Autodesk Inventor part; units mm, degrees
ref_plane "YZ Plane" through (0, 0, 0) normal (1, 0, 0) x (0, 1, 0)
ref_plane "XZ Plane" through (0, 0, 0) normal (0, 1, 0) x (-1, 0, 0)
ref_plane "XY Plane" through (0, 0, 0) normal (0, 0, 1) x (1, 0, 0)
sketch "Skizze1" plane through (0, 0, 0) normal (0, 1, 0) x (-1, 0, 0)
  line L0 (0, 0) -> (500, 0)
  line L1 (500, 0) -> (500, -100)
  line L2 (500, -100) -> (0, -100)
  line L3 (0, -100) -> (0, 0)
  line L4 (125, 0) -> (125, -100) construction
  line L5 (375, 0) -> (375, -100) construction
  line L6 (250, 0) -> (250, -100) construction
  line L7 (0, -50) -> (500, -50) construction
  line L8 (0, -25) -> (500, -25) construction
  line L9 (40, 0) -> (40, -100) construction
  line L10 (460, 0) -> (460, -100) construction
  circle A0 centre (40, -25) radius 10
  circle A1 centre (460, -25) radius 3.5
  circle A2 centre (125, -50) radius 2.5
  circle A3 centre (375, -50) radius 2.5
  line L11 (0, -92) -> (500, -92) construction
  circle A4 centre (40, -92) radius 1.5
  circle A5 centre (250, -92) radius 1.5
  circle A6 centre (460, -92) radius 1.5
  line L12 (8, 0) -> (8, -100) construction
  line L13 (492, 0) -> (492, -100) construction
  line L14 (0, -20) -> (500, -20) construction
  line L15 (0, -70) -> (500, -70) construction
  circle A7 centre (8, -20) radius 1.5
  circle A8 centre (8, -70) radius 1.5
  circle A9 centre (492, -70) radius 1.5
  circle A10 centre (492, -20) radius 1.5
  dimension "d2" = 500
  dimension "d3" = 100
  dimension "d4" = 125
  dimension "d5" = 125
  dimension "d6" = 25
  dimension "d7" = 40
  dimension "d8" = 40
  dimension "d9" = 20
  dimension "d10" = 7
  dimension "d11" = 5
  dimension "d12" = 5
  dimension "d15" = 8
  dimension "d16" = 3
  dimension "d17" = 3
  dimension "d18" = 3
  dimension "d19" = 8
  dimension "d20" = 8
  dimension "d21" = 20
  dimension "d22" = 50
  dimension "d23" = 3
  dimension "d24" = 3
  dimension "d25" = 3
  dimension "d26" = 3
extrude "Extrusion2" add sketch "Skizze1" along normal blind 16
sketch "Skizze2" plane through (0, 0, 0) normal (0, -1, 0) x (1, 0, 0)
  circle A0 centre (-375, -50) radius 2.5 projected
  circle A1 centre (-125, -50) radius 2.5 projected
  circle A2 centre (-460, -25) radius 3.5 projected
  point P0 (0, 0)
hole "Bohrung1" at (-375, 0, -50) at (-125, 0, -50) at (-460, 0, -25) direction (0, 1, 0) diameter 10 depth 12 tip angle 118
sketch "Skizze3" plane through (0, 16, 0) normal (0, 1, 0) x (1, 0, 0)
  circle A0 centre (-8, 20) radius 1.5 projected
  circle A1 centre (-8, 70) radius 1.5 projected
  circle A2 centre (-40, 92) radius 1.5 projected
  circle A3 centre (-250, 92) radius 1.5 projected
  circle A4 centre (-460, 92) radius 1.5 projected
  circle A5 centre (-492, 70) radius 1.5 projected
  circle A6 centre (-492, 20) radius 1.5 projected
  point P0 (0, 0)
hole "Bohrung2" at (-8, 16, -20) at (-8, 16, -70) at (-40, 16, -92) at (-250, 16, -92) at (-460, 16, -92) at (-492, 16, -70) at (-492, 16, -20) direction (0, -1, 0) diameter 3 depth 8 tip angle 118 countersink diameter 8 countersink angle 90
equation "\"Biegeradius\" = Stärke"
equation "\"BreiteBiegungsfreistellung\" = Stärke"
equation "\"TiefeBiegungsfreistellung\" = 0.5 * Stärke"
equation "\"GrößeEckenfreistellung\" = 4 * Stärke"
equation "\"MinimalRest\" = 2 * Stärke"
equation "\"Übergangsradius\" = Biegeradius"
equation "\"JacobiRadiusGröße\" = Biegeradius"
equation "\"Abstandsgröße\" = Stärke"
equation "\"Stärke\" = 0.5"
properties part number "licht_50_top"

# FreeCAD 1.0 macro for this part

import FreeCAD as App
import Part
import Sketcher

V = App.Vector


def add_polygon(sketch, points):
    """Adds a closed chain of lines whose ends are joined by coincident constraints."""
    first, n = sketch.GeometryCount, len(points)
    for a, b in zip(points, points[1:] + points[:1]):
        sketch.addGeometry(Part.LineSegment(App.Vector(*a, 0), App.Vector(*b, 0)), False)
    for i in range(n):
        sketch.addConstraint(Sketcher.Constraint("Coincident", first + i, 2, first + (i + 1) % n, 1))

doc = App.newDocument("Part")
body = doc.addObject("PartDesign::Body", "Body")

sketch1 = doc.addObject("Sketcher::SketchObject", "Sketch")
body.addObject(sketch1)
sketch1.AttachmentSupport = (doc.XZ_Plane, [""])
sketch1.MapMode = "FlatFace"
add_polygon(sketch1, [(-500, 0), (0, 0), (0, -100), (-500, -100)])
sketch1.addGeometry(Part.Circle(V(-40, -92, 0), V(0, 0, 1), 1.5), False)
sketch1.addGeometry(Part.Circle(V(-8, -70, 0), V(0, 0, 1), 1.5), False)
sketch1.addGeometry(Part.Circle(V(-250, -92, 0), V(0, 0, 1), 1.5), False)
sketch1.addGeometry(Part.Circle(V(-460, -92, 0), V(0, 0, 1), 1.5), False)
sketch1.addGeometry(Part.Circle(V(-492, -70, 0), V(0, 0, 1), 1.5), False)
sketch1.addGeometry(Part.Circle(V(-125, -50, 0), V(0, 0, 1), 2.5), False)
sketch1.addGeometry(Part.Circle(V(-8, -20, 0), V(0, 0, 1), 1.5), False)
sketch1.addGeometry(Part.Circle(V(-40, -25, 0), V(0, 0, 1), 10), False)
sketch1.addGeometry(Part.Circle(V(-375, -50, 0), V(0, 0, 1), 2.5), False)
sketch1.addGeometry(Part.Circle(V(-460, -25, 0), V(0, 0, 1), 3.5), False)
sketch1.addGeometry(Part.Circle(V(-492, -20, 0), V(0, 0, 1), 1.5), False)
sketch1.addConstraint(Sketcher.Constraint("Horizontal", 0))
sketch1.addConstraint(Sketcher.Constraint("Vertical", 1))
sketch1.addConstraint(Sketcher.Constraint("Horizontal", 2))
sketch1.addConstraint(Sketcher.Constraint("Vertical", 3))
sketch1.addConstraint(Sketcher.Constraint("Coincident", 0, 2, -1, 1))
sketch1.addConstraint(Sketcher.Constraint("Equal", 4, 5))
sketch1.addConstraint(Sketcher.Constraint("Equal", 5, 6))
sketch1.addConstraint(Sketcher.Constraint("Equal", 6, 7))
sketch1.addConstraint(Sketcher.Constraint("Equal", 7, 8))
sketch1.addConstraint(Sketcher.Constraint("Equal", 8, 10))
sketch1.addConstraint(Sketcher.Constraint("Equal", 9, 12))
sketch1.addConstraint(Sketcher.Constraint("Equal", 10, 14))
sketch1.addConstraint(Sketcher.Constraint("Horizontal", 4, 3, 6, 3))
sketch1.addConstraint(Sketcher.Constraint("Horizontal", 6, 3, 7, 3))
sketch1.addConstraint(Sketcher.Constraint("Horizontal", 5, 3, 8, 3))
sketch1.addConstraint(Sketcher.Constraint("Horizontal", 9, 3, 12, 3))
sketch1.addConstraint(Sketcher.Constraint("Horizontal", 11, 3, 13, 3))
sketch1.addConstraint(Sketcher.Constraint("Horizontal", 10, 3, 14, 3))
sketch1.addConstraint(Sketcher.Constraint("Vertical", 5, 3, 10, 3))
sketch1.addConstraint(Sketcher.Constraint("Vertical", 4, 3, 11, 3))
sketch1.addConstraint(Sketcher.Constraint("Vertical", 7, 3, 13, 3))
sketch1.addConstraint(Sketcher.Constraint("Vertical", 8, 3, 14, 3))
sketch1.addConstraint(Sketcher.Constraint("Diameter", 4, 3.0))
sketch1.addConstraint(Sketcher.Constraint("Diameter", 9, 5.0))
sketch1.addConstraint(Sketcher.Constraint("Diameter", 11, 20.0))
sketch1.addConstraint(Sketcher.Constraint("Diameter", 13, 7.0))
sketch1.addConstraint(Sketcher.Constraint("DistanceX", 0, 1, 0, 2, 500.0))
sketch1.addConstraint(Sketcher.Constraint("DistanceY", 1, 2, 1, 1, 100.0))
sketch1.addConstraint(Sketcher.Constraint("DistanceX", 4, 3, -1, 1, 40.0))
sketch1.addConstraint(Sketcher.Constraint("DistanceX", 5, 3, -1, 1, 8.0))
sketch1.addConstraint(Sketcher.Constraint("DistanceX", 9, 3, -1, 1, 125.0))
sketch1.addConstraint(Sketcher.Constraint("DistanceY", 9, 3, -1, 1, 50.0))
sketch1.addConstraint(Sketcher.Constraint("DistanceY", 10, 3, -1, 1, 20.0))
sketch1.addConstraint(Sketcher.Constraint("DistanceY", 11, 3, -1, 1, 25.0))
sketch1.addConstraint(Sketcher.Constraint("DistanceY", 5, 3, 9, 3, 20.0))
sketch1.addConstraint(Sketcher.Constraint("DistanceX", 6, 3, 9, 3, 125.0))
sketch1.addConstraint(Sketcher.Constraint("DistanceX", 12, 3, 6, 3, 125.0))
sketch1.addConstraint(Sketcher.Constraint("DistanceY", 1, 2, 4, 3, 8.0))
sketch1.addConstraint(Sketcher.Constraint("DistanceX", 2, 2, 8, 3, 8.0))
sketch1.addConstraint(Sketcher.Constraint("DistanceX", 2, 2, 7, 3, 40.0))
pad1 = doc.addObject("PartDesign::Pad", "Pad")
body.addObject(pad1)
pad1.Profile = sketch1
pad1.Length = 16
pad1.Reversed = True

sketch2 = doc.addObject("Sketcher::SketchObject", "Sketch001")
body.addObject(sketch2)
sketch2.AttachmentSupport = (doc.XZ_Plane, [""])
sketch2.MapMode = "FlatFace"
sketch2.addGeometry(Part.Circle(V(-375, -50, 0), V(0, 0, 1), 5), False)
sketch2.addGeometry(Part.Circle(V(-125, -50, 0), V(0, 0, 1), 5), False)
sketch2.addGeometry(Part.Circle(V(-460, -25, 0), V(0, 0, 1), 5), False)
sketch2.addConstraint(Sketcher.Constraint("Equal", 0, 1))
sketch2.addConstraint(Sketcher.Constraint("Equal", 1, 2))
sketch2.addConstraint(Sketcher.Constraint("Horizontal", 0, 3, 1, 3))
sketch2.addConstraint(Sketcher.Constraint("Diameter", 0, 10.0))
sketch2.addConstraint(Sketcher.Constraint("DistanceX", 0, 3, -1, 1, 375.0))
sketch2.addConstraint(Sketcher.Constraint("DistanceY", 0, 3, -1, 1, 50.0))
sketch2.addConstraint(Sketcher.Constraint("DistanceX", 1, 3, -1, 1, 125.0))
sketch2.addConstraint(Sketcher.Constraint("DistanceX", 2, 3, -1, 1, 460.0))
sketch2.addConstraint(Sketcher.Constraint("DistanceY", 2, 3, -1, 1, 25.0))
doc.recompute()
hole = doc.addObject("PartDesign::Hole", "Hole")
body.addObject(hole)
hole.Profile = sketch2
hole.ThreadType = "None"
hole.Diameter = 10
hole.DepthType = "Dimension"
hole.Depth = 12
hole.DrillPoint = "Angled"
hole.DrillPointAngle = 118

sketch3 = doc.addObject("Sketcher::SketchObject", "Sketch002")
body.addObject(sketch3)
sketch3.AttachmentSupport = (doc.XZ_Plane, [""])
sketch3.MapMode = "FlatFace"
sketch3.AttachmentOffset = App.Placement(V(0, 0, -16), App.Rotation())
sketch3.addGeometry(Part.Circle(V(-8, -20, 0), V(0, 0, 1), 1.5), False)
sketch3.addGeometry(Part.Circle(V(-8, -70, 0), V(0, 0, 1), 1.5), False)
sketch3.addGeometry(Part.Circle(V(-40, -92, 0), V(0, 0, 1), 1.5), False)
sketch3.addGeometry(Part.Circle(V(-250, -92, 0), V(0, 0, 1), 1.5), False)
sketch3.addGeometry(Part.Circle(V(-460, -92, 0), V(0, 0, 1), 1.5), False)
sketch3.addGeometry(Part.Circle(V(-492, -70, 0), V(0, 0, 1), 1.5), False)
sketch3.addGeometry(Part.Circle(V(-492, -20, 0), V(0, 0, 1), 1.5), False)
sketch3.addConstraint(Sketcher.Constraint("Equal", 0, 1))
sketch3.addConstraint(Sketcher.Constraint("Equal", 1, 2))
sketch3.addConstraint(Sketcher.Constraint("Equal", 2, 3))
sketch3.addConstraint(Sketcher.Constraint("Equal", 3, 4))
sketch3.addConstraint(Sketcher.Constraint("Equal", 4, 5))
sketch3.addConstraint(Sketcher.Constraint("Equal", 5, 6))
sketch3.addConstraint(Sketcher.Constraint("Horizontal", 2, 3, 3, 3))
sketch3.addConstraint(Sketcher.Constraint("Horizontal", 3, 3, 4, 3))
sketch3.addConstraint(Sketcher.Constraint("Horizontal", 1, 3, 5, 3))
sketch3.addConstraint(Sketcher.Constraint("Horizontal", 0, 3, 6, 3))
sketch3.addConstraint(Sketcher.Constraint("Vertical", 0, 3, 1, 3))
sketch3.addConstraint(Sketcher.Constraint("Vertical", 5, 3, 6, 3))
sketch3.addConstraint(Sketcher.Constraint("Diameter", 0, 3.0))
sketch3.addConstraint(Sketcher.Constraint("DistanceX", 0, 3, -1, 1, 8.0))
sketch3.addConstraint(Sketcher.Constraint("DistanceY", 0, 3, -1, 1, 20.0))
sketch3.addConstraint(Sketcher.Constraint("DistanceY", 1, 3, -1, 1, 70.0))
sketch3.addConstraint(Sketcher.Constraint("DistanceX", 2, 3, -1, 1, 40.0))
sketch3.addConstraint(Sketcher.Constraint("DistanceY", 2, 3, -1, 1, 92.0))
sketch3.addConstraint(Sketcher.Constraint("DistanceX", 3, 3, -1, 1, 250.0))
sketch3.addConstraint(Sketcher.Constraint("DistanceX", 4, 3, -1, 1, 460.0))
sketch3.addConstraint(Sketcher.Constraint("DistanceX", 5, 3, -1, 1, 492.0))
doc.recompute()
hole2 = doc.addObject("PartDesign::Hole", "Hole001")
body.addObject(hole2)
hole2.Profile = sketch3
hole2.ThreadType = "None"
hole2.Diameter = 3
hole2.DepthType = "Dimension"
hole2.Depth = 8
hole2.DrillPoint = "Angled"
hole2.DrillPointAngle = 118
hole2.HoleCutType = "Countersink"
hole2.HoleCutDiameter = 8
hole2.HoleCutCountersinkAngle = 90
hole2.Reversed = True

doc.recompute()
